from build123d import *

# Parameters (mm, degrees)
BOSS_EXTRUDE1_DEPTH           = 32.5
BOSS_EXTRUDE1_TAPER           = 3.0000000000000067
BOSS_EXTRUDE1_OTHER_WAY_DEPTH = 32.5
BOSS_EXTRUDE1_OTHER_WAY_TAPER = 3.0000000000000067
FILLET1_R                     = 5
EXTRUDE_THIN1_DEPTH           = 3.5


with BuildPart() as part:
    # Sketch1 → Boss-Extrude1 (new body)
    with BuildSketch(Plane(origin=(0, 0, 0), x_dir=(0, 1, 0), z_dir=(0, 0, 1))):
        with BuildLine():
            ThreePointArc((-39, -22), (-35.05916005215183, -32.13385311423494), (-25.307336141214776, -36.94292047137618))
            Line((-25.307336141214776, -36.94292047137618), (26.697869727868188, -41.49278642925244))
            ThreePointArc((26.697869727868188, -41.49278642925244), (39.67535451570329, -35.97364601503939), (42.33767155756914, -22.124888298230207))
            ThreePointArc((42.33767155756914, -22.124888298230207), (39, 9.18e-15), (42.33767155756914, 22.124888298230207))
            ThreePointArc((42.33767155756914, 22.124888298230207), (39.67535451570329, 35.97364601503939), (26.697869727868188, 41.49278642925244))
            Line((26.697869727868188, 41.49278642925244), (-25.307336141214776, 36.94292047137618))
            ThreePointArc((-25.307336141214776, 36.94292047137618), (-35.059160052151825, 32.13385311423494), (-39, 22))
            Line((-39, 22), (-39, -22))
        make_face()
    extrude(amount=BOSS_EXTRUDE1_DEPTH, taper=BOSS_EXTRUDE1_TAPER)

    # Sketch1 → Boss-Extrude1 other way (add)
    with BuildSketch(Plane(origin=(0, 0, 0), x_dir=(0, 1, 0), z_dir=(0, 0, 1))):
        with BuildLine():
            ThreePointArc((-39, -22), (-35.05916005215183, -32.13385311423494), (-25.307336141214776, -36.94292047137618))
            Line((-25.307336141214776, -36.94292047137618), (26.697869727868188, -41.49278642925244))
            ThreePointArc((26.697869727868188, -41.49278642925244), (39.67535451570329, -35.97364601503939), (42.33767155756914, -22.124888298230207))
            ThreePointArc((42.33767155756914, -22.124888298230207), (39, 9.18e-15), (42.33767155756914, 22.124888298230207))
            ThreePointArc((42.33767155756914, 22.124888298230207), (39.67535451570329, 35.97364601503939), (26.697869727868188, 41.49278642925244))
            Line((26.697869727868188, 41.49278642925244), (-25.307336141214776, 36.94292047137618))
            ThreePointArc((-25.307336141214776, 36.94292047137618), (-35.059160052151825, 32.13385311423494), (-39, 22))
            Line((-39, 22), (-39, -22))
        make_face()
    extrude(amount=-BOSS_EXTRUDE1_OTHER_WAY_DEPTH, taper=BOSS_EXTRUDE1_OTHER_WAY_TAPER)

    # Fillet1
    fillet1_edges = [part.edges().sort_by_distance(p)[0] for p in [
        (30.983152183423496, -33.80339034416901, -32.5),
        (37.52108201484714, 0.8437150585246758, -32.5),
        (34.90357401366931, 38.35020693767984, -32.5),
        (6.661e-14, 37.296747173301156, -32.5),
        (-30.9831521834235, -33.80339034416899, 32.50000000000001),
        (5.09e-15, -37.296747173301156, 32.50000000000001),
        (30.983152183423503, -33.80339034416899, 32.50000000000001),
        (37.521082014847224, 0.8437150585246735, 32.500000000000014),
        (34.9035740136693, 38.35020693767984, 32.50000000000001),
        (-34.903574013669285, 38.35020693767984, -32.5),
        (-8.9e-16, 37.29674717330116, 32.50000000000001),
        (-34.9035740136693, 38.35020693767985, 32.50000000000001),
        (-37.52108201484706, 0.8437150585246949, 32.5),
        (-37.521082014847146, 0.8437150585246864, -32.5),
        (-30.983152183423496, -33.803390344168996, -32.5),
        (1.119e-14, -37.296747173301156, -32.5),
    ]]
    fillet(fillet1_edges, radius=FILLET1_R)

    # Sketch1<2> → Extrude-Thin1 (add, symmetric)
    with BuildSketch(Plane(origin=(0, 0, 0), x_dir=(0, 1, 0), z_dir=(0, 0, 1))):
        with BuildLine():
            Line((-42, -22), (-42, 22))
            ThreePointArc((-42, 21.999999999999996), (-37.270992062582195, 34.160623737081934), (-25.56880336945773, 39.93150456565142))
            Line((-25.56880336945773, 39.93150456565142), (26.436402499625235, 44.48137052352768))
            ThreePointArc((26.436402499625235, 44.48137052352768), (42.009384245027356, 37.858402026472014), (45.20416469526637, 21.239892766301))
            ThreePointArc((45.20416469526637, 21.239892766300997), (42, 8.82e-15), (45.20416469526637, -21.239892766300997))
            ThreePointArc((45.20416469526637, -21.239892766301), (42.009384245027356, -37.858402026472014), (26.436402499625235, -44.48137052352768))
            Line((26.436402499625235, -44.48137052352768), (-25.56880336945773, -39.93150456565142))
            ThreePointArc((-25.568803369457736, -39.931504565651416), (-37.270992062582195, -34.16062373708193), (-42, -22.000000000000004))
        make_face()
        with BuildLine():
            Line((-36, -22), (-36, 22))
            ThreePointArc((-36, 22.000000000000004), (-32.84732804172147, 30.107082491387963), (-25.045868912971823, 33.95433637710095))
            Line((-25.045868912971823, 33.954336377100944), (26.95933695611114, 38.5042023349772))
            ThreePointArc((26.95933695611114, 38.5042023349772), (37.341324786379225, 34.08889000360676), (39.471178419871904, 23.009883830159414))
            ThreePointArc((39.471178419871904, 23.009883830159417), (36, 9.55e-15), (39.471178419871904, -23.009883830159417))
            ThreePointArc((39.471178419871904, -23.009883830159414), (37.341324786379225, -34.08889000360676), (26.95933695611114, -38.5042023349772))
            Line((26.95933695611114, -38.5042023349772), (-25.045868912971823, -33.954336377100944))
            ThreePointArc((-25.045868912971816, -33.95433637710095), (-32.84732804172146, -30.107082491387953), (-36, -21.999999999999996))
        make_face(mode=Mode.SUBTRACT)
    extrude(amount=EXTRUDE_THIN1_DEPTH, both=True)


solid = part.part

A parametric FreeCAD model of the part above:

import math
import FreeCAD as App
import Part
import Sketcher

V = App.Vector
Q = App.Units.Quantity


def edges_at(feature, points):
    """Names of the edges that pass closest to the given points."""
    edges = feature.Shape.Edges
    near = lambda p: min(range(len(edges)), key=lambda i: edges[i].distToShape(Part.Vertex(*p))[0])
    return sorted({f"Edge{near(p) + 1}" for p in points})

doc = App.newDocument("Part")
params = doc.addObject("Spreadsheet::Sheet", "Params")
for row, (alias, value) in enumerate([
    ("sketch1_radius", "15 mm"),
    ("sketch1_radius2", "75 mm"),
    ("sketch1_width", "44 mm"),
    ("pad1_length", "32.5 mm"),
    ("pad1_taper", "-3 deg"),
    ("sketch2_radius", "15 mm"),
    ("sketch2_radius2", "75 mm"),
    ("sketch2_width", "44 mm"),
    ("pad2_length", "32.5 mm"),
    ("pad2_taper", "-3 deg"),
    ("fillet_radius", "5 mm"),
    ("sketch3_radius", "18 mm"),
    ("sketch3_radius2", "72 mm"),
    ("sketch3_radius3", "12 mm"),
    ("sketch3_width", "44 mm"),
    ("pad3_length", "7 mm"),
], start=1):
    params.set(f"A{row}", alias)
    params.set(f"B{row}", "=" + value)
    params.setAlias(f"B{row}", alias)

body = doc.addObject("PartDesign::Body", "Body")

sketch1 = body.newObject("Sketcher::SketchObject", "Sketch")
sketch1.AttachmentSupport = (doc.getObject("XY_Plane"), [""])
sketch1.MapMode = "FlatFace"
sketch1.addGeometry([
    Part.ArcOfCircle(Part.Circle(V(22, -24, 0), V(0, 0, 1), 15), math.radians(-90), math.radians(-5)),
    Part.LineSegment(V(37, -25, 0), V(41, 27, 0)),
    Part.ArcOfCircle(Part.Circle(V(27, 28, 0), V(0, 0, 1), 15), math.radians(-5), math.radians(107)),
    Part.ArcOfCircle(Part.Circle(V(0, 114, 0), V(0, 0, 1), 75), math.radians(-107), math.radians(-73)),
    Part.ArcOfCircle(Part.Circle(V(-27, 28, 0), V(0, 0, 1), 15), math.radians(73), math.radians(185)),
    Part.LineSegment(V(-41, 27, 0), V(-37, -25, 0)),
    Part.ArcOfCircle(Part.Circle(V(-22, -24, 0), V(0, 0, 1), 15), math.radians(-175), math.radians(-90)),
    Part.LineSegment(V(-22, -39, 0), V(22, -39, 0)),
], False)
sketch1.addConstraint([
    Sketcher.Constraint("Tangent", 0, 2, 1, 1),
    Sketcher.Constraint("Tangent", 1, 2, 2, 1),
    Sketcher.Constraint("Tangent", 2, 2, 3, 2),
    Sketcher.Constraint("Tangent", 3, 1, 4, 1),
    Sketcher.Constraint("Tangent", 4, 2, 5, 1),
    Sketcher.Constraint("Tangent", 5, 2, 6, 1),
    Sketcher.Constraint("Tangent", 6, 2, 7, 1),
    Sketcher.Constraint("Tangent", 7, 2, 0, 1),
    Sketcher.Constraint("Horizontal", 7),
    Sketcher.Constraint("Equal", 0, 2),
    Sketcher.Constraint("Equal", 2, 4),
    Sketcher.Constraint("Equal", 4, 6),
    Sketcher.Constraint("Symmetric", 2, 3, 4, 3, -2),
    Sketcher.Constraint("Horizontal", 1, 2, 4, 2),
    Sketcher.Constraint("Radius", 0, 15.0),
    Sketcher.Constraint("Radius", 3, 75.0),
    Sketcher.Constraint("DistanceX", 7, 1, 7, 2, 44.0),
    Sketcher.Constraint("Angle", 1, Q("85 deg")),
    Sketcher.Constraint("DistanceY", 0, 3, -1, 1, 24.0),
    Sketcher.Constraint("DistanceY", -1, 1, 3, 3, 114.0),
])
sketch1.setExpression("Constraints[14]", "Params.sketch1_radius")
sketch1.setExpression("Constraints[15]", "Params.sketch1_radius2")
sketch1.setExpression("Constraints[16]", "Params.sketch1_width")
pad1 = body.newObject("PartDesign::Pad", "Pad")
pad1.Profile = sketch1
pad1.setExpression("Length", "Params.pad1_length")
pad1.setExpression("TaperAngle", "Params.pad1_taper")

sketch2 = body.newObject("Sketcher::SketchObject", "Sketch001")
sketch2.AttachmentSupport = (doc.getObject("XY_Plane"), [""])
sketch2.MapMode = "FlatFace"
sketch2.addGeometry([
    Part.ArcOfCircle(Part.Circle(V(22, -24, 0), V(0, 0, 1), 15), math.radians(-90), math.radians(-5)),
    Part.LineSegment(V(37, -25, 0), V(41, 27, 0)),
    Part.ArcOfCircle(Part.Circle(V(27, 28, 0), V(0, 0, 1), 15), math.radians(-5), math.radians(107)),
    Part.ArcOfCircle(Part.Circle(V(0, 114, 0), V(0, 0, 1), 75), math.radians(-107), math.radians(-73)),
    Part.ArcOfCircle(Part.Circle(V(-27, 28, 0), V(0, 0, 1), 15), math.radians(73), math.radians(185)),
    Part.LineSegment(V(-41, 27, 0), V(-37, -25, 0)),
    Part.ArcOfCircle(Part.Circle(V(-22, -24, 0), V(0, 0, 1), 15), math.radians(-175), math.radians(-90)),
    Part.LineSegment(V(-22, -39, 0), V(22, -39, 0)),
], False)
sketch2.addConstraint([
    Sketcher.Constraint("Tangent", 0, 2, 1, 1),
    Sketcher.Constraint("Tangent", 1, 2, 2, 1),
    Sketcher.Constraint("Tangent", 2, 2, 3, 2),
    Sketcher.Constraint("Tangent", 3, 1, 4, 1),
    Sketcher.Constraint("Tangent", 4, 2, 5, 1),
    Sketcher.Constraint("Tangent", 5, 2, 6, 1),
    Sketcher.Constraint("Tangent", 6, 2, 7, 1),
    Sketcher.Constraint("Tangent", 7, 2, 0, 1),
    Sketcher.Constraint("Horizontal", 7),
    Sketcher.Constraint("Equal", 0, 2),
    Sketcher.Constraint("Equal", 2, 4),
    Sketcher.Constraint("Equal", 4, 6),
    Sketcher.Constraint("Symmetric", 2, 3, 4, 3, -2),
    Sketcher.Constraint("Horizontal", 1, 2, 4, 2),
    Sketcher.Constraint("Radius", 0, 15.0),
    Sketcher.Constraint("Radius", 3, 75.0),
    Sketcher.Constraint("DistanceX", 7, 1, 7, 2, 44.0),
    Sketcher.Constraint("Angle", 1, Q("85 deg")),
    Sketcher.Constraint("DistanceY", 0, 3, -1, 1, 24.0),
    Sketcher.Constraint("DistanceY", -1, 1, 3, 3, 114.0),
])
sketch2.setExpression("Constraints[14]", "Params.sketch2_radius")
sketch2.setExpression("Constraints[15]", "Params.sketch2_radius2")
sketch2.setExpression("Constraints[16]", "Params.sketch2_width")
pad2 = body.newObject("PartDesign::Pad", "Pad001")
pad2.Profile = sketch2
pad2.setExpression("Length", "Params.pad2_length")
pad2.Reversed = True
pad2.setExpression("TaperAngle", "Params.pad2_taper")
doc.recompute()

fillet = body.newObject("PartDesign::Fillet", "Fillet")
fillet.Base = (pad2, edges_at(pad2, [
    (30.983, -33.803, -32.5),
    (37.521, 0.844, -32.5),
    (34.904, 38.35, -32.5),
    (0, 37.297, -32.5),
    (-30.983, -33.803, 32.5),
    (0, -37.297, 32.5),
    (30.983, -33.803, 32.5),
    (37.521, 0.844, 32.5),
    (34.904, 38.35, 32.5),
    (-34.904, 38.35, -32.5),
    (0, 37.297, 32.5),
    (-34.904, 38.35, 32.5),
    (-37.521, 0.844, 32.5),
    (-37.521, 0.844, -32.5),
    (-30.983, -33.803, -32.5),
    (0, -37.297, -32.5),
]))
fillet.setExpression("Radius", "Params.fillet_radius")

sketch3 = body.newObject("Sketcher::SketchObject", "Sketch002")
sketch3.AttachmentSupport = (doc.getObject("XY_Plane"), [""])
sketch3.MapMode = "FlatFace"
sketch3.addGeometry([
    Part.LineSegment(V(-22, -42, 0), V(22, -42, 0)),
    Part.ArcOfCircle(Part.Circle(V(22, -24, 0), V(0, 0, 1), 18), math.radians(-90), math.radians(-5)),
    Part.LineSegment(V(40, -26, 0), V(44, 26, 0)),
    Part.ArcOfCircle(Part.Circle(V(27, 28, 0), V(0, 0, 1), 18), math.radians(-5), math.radians(107)),
    Part.ArcOfCircle(Part.Circle(V(0, 114, 0), V(0, 0, 1), 72), math.radians(-107), math.radians(-73)),
    Part.ArcOfCircle(Part.Circle(V(-27, 28, 0), V(0, 0, 1), 18), math.radians(73), math.radians(185)),
    Part.LineSegment(V(-44, 26, 0), V(-40, -26, 0)),
    Part.ArcOfCircle(Part.Circle(V(-22, -24, 0), V(0, 0, 1), 18), math.radians(-175), math.radians(-90)),
    Part.LineSegment(V(22, -36, 0), V(-22, -36, 0)),
    Part.ArcOfCircle(Part.Circle(V(-22, -24, 0), V(0, 0, 1), 12), math.radians(-175), math.radians(-90)),
    Part.LineSegment(V(-34, -25, 0), V(-39, 27, 0)),
    Part.ArcOfCircle(Part.Circle(V(-27, 28, 0), V(0, 0, 1), 12), math.radians(73), math.radians(185)),
    Part.ArcOfCircle(Part.Circle(V(0, 114, 0), V(0, 0, 1), 78), math.radians(-107), math.radians(-73)),
    Part.ArcOfCircle(Part.Circle(V(27, 28, 0), V(0, 0, 1), 12), math.radians(-5), math.radians(107)),
    Part.LineSegment(V(39, 27, 0), V(34, -25, 0)),
    Part.ArcOfCircle(Part.Circle(V(22, -24, 0), V(0, 0, 1), 12), math.radians(-90), math.radians(-5)),
], False)
sketch3.addConstraint([
    Sketcher.Constraint("Tangent", 0, 2, 1, 1),
    Sketcher.Constraint("Tangent", 1, 2, 2, 1),
    Sketcher.Constraint("Tangent", 2, 2, 3, 1),
    Sketcher.Constraint("Tangent", 3, 2, 4, 2),
    Sketcher.Constraint("Tangent", 4, 1, 5, 1),
    Sketcher.Constraint("Tangent", 5, 2, 6, 1),
    Sketcher.Constraint("Tangent", 6, 2, 7, 1),
    Sketcher.Constraint("Tangent", 7, 2, 0, 1),
    Sketcher.Constraint("Tangent", 8, 2, 9, 2),
    Sketcher.Constraint("Tangent", 9, 1, 10, 1),
    Sketcher.Constraint("Tangent", 10, 2, 11, 2),
    Sketcher.Constraint("Tangent", 11, 1, 12, 1),
    Sketcher.Constraint("Tangent", 12, 2, 13, 2),
    Sketcher.Constraint("Tangent", 13, 1, 14, 1),
    Sketcher.Constraint("Tangent", 14, 2, 15, 2),
    Sketcher.Constraint("Tangent", 15, 1, 8, 1),
    Sketcher.Constraint("Horizontal", 0),
    Sketcher.Constraint("Horizontal", 8),
    Sketcher.Constraint("Coincident", 9, 3, 7, 3),
    Sketcher.Constraint("Coincident", 11, 3, 5, 3),
    Sketcher.Constraint("Coincident", 12, 3, 4, 3),
    Sketcher.Constraint("Coincident", 13, 3, 3, 3),
    Sketcher.Constraint("Coincident", 15, 3, 1, 3),
    Sketcher.Constraint("Equal", 1, 3),
    Sketcher.Constraint("Equal", 3, 5),
    Sketcher.Constraint("Equal", 5, 7),
    Sketcher.Constraint("Equal", 9, 11),
    Sketcher.Constraint("Symmetric", 3, 3, 5, 3, -2),
    Sketcher.Constraint("Horizontal", 2, 2, 5, 2),
    Sketcher.Constraint("Radius", 1, 18.0),
    Sketcher.Constraint("Radius", 4, 72.0),
    Sketcher.Constraint("Radius", 9, 12.0),
    Sketcher.Constraint("DistanceX", 0, 1, 0, 2, 44.0),
    Sketcher.Constraint("Angle", 2, Q("85 deg")),
    Sketcher.Constraint("DistanceY", 1, 3, -1, 1, 24.0),
    Sketcher.Constraint("DistanceY", -1, 1, 4, 3, 114.0),
])
sketch3.setExpression("Constraints[29]", "Params.sketch3_radius")
sketch3.setExpression("Constraints[30]", "Params.sketch3_radius2")
sketch3.setExpression("Constraints[31]", "Params.sketch3_radius3")
sketch3.setExpression("Constraints[32]", "Params.sketch3_width")
pad3 = body.newObject("PartDesign::Pad", "Pad002")
pad3.Profile = sketch3
pad3.setExpression("Length", "Params.pad3_length")
pad3.Midplane = True

doc.recompute()
